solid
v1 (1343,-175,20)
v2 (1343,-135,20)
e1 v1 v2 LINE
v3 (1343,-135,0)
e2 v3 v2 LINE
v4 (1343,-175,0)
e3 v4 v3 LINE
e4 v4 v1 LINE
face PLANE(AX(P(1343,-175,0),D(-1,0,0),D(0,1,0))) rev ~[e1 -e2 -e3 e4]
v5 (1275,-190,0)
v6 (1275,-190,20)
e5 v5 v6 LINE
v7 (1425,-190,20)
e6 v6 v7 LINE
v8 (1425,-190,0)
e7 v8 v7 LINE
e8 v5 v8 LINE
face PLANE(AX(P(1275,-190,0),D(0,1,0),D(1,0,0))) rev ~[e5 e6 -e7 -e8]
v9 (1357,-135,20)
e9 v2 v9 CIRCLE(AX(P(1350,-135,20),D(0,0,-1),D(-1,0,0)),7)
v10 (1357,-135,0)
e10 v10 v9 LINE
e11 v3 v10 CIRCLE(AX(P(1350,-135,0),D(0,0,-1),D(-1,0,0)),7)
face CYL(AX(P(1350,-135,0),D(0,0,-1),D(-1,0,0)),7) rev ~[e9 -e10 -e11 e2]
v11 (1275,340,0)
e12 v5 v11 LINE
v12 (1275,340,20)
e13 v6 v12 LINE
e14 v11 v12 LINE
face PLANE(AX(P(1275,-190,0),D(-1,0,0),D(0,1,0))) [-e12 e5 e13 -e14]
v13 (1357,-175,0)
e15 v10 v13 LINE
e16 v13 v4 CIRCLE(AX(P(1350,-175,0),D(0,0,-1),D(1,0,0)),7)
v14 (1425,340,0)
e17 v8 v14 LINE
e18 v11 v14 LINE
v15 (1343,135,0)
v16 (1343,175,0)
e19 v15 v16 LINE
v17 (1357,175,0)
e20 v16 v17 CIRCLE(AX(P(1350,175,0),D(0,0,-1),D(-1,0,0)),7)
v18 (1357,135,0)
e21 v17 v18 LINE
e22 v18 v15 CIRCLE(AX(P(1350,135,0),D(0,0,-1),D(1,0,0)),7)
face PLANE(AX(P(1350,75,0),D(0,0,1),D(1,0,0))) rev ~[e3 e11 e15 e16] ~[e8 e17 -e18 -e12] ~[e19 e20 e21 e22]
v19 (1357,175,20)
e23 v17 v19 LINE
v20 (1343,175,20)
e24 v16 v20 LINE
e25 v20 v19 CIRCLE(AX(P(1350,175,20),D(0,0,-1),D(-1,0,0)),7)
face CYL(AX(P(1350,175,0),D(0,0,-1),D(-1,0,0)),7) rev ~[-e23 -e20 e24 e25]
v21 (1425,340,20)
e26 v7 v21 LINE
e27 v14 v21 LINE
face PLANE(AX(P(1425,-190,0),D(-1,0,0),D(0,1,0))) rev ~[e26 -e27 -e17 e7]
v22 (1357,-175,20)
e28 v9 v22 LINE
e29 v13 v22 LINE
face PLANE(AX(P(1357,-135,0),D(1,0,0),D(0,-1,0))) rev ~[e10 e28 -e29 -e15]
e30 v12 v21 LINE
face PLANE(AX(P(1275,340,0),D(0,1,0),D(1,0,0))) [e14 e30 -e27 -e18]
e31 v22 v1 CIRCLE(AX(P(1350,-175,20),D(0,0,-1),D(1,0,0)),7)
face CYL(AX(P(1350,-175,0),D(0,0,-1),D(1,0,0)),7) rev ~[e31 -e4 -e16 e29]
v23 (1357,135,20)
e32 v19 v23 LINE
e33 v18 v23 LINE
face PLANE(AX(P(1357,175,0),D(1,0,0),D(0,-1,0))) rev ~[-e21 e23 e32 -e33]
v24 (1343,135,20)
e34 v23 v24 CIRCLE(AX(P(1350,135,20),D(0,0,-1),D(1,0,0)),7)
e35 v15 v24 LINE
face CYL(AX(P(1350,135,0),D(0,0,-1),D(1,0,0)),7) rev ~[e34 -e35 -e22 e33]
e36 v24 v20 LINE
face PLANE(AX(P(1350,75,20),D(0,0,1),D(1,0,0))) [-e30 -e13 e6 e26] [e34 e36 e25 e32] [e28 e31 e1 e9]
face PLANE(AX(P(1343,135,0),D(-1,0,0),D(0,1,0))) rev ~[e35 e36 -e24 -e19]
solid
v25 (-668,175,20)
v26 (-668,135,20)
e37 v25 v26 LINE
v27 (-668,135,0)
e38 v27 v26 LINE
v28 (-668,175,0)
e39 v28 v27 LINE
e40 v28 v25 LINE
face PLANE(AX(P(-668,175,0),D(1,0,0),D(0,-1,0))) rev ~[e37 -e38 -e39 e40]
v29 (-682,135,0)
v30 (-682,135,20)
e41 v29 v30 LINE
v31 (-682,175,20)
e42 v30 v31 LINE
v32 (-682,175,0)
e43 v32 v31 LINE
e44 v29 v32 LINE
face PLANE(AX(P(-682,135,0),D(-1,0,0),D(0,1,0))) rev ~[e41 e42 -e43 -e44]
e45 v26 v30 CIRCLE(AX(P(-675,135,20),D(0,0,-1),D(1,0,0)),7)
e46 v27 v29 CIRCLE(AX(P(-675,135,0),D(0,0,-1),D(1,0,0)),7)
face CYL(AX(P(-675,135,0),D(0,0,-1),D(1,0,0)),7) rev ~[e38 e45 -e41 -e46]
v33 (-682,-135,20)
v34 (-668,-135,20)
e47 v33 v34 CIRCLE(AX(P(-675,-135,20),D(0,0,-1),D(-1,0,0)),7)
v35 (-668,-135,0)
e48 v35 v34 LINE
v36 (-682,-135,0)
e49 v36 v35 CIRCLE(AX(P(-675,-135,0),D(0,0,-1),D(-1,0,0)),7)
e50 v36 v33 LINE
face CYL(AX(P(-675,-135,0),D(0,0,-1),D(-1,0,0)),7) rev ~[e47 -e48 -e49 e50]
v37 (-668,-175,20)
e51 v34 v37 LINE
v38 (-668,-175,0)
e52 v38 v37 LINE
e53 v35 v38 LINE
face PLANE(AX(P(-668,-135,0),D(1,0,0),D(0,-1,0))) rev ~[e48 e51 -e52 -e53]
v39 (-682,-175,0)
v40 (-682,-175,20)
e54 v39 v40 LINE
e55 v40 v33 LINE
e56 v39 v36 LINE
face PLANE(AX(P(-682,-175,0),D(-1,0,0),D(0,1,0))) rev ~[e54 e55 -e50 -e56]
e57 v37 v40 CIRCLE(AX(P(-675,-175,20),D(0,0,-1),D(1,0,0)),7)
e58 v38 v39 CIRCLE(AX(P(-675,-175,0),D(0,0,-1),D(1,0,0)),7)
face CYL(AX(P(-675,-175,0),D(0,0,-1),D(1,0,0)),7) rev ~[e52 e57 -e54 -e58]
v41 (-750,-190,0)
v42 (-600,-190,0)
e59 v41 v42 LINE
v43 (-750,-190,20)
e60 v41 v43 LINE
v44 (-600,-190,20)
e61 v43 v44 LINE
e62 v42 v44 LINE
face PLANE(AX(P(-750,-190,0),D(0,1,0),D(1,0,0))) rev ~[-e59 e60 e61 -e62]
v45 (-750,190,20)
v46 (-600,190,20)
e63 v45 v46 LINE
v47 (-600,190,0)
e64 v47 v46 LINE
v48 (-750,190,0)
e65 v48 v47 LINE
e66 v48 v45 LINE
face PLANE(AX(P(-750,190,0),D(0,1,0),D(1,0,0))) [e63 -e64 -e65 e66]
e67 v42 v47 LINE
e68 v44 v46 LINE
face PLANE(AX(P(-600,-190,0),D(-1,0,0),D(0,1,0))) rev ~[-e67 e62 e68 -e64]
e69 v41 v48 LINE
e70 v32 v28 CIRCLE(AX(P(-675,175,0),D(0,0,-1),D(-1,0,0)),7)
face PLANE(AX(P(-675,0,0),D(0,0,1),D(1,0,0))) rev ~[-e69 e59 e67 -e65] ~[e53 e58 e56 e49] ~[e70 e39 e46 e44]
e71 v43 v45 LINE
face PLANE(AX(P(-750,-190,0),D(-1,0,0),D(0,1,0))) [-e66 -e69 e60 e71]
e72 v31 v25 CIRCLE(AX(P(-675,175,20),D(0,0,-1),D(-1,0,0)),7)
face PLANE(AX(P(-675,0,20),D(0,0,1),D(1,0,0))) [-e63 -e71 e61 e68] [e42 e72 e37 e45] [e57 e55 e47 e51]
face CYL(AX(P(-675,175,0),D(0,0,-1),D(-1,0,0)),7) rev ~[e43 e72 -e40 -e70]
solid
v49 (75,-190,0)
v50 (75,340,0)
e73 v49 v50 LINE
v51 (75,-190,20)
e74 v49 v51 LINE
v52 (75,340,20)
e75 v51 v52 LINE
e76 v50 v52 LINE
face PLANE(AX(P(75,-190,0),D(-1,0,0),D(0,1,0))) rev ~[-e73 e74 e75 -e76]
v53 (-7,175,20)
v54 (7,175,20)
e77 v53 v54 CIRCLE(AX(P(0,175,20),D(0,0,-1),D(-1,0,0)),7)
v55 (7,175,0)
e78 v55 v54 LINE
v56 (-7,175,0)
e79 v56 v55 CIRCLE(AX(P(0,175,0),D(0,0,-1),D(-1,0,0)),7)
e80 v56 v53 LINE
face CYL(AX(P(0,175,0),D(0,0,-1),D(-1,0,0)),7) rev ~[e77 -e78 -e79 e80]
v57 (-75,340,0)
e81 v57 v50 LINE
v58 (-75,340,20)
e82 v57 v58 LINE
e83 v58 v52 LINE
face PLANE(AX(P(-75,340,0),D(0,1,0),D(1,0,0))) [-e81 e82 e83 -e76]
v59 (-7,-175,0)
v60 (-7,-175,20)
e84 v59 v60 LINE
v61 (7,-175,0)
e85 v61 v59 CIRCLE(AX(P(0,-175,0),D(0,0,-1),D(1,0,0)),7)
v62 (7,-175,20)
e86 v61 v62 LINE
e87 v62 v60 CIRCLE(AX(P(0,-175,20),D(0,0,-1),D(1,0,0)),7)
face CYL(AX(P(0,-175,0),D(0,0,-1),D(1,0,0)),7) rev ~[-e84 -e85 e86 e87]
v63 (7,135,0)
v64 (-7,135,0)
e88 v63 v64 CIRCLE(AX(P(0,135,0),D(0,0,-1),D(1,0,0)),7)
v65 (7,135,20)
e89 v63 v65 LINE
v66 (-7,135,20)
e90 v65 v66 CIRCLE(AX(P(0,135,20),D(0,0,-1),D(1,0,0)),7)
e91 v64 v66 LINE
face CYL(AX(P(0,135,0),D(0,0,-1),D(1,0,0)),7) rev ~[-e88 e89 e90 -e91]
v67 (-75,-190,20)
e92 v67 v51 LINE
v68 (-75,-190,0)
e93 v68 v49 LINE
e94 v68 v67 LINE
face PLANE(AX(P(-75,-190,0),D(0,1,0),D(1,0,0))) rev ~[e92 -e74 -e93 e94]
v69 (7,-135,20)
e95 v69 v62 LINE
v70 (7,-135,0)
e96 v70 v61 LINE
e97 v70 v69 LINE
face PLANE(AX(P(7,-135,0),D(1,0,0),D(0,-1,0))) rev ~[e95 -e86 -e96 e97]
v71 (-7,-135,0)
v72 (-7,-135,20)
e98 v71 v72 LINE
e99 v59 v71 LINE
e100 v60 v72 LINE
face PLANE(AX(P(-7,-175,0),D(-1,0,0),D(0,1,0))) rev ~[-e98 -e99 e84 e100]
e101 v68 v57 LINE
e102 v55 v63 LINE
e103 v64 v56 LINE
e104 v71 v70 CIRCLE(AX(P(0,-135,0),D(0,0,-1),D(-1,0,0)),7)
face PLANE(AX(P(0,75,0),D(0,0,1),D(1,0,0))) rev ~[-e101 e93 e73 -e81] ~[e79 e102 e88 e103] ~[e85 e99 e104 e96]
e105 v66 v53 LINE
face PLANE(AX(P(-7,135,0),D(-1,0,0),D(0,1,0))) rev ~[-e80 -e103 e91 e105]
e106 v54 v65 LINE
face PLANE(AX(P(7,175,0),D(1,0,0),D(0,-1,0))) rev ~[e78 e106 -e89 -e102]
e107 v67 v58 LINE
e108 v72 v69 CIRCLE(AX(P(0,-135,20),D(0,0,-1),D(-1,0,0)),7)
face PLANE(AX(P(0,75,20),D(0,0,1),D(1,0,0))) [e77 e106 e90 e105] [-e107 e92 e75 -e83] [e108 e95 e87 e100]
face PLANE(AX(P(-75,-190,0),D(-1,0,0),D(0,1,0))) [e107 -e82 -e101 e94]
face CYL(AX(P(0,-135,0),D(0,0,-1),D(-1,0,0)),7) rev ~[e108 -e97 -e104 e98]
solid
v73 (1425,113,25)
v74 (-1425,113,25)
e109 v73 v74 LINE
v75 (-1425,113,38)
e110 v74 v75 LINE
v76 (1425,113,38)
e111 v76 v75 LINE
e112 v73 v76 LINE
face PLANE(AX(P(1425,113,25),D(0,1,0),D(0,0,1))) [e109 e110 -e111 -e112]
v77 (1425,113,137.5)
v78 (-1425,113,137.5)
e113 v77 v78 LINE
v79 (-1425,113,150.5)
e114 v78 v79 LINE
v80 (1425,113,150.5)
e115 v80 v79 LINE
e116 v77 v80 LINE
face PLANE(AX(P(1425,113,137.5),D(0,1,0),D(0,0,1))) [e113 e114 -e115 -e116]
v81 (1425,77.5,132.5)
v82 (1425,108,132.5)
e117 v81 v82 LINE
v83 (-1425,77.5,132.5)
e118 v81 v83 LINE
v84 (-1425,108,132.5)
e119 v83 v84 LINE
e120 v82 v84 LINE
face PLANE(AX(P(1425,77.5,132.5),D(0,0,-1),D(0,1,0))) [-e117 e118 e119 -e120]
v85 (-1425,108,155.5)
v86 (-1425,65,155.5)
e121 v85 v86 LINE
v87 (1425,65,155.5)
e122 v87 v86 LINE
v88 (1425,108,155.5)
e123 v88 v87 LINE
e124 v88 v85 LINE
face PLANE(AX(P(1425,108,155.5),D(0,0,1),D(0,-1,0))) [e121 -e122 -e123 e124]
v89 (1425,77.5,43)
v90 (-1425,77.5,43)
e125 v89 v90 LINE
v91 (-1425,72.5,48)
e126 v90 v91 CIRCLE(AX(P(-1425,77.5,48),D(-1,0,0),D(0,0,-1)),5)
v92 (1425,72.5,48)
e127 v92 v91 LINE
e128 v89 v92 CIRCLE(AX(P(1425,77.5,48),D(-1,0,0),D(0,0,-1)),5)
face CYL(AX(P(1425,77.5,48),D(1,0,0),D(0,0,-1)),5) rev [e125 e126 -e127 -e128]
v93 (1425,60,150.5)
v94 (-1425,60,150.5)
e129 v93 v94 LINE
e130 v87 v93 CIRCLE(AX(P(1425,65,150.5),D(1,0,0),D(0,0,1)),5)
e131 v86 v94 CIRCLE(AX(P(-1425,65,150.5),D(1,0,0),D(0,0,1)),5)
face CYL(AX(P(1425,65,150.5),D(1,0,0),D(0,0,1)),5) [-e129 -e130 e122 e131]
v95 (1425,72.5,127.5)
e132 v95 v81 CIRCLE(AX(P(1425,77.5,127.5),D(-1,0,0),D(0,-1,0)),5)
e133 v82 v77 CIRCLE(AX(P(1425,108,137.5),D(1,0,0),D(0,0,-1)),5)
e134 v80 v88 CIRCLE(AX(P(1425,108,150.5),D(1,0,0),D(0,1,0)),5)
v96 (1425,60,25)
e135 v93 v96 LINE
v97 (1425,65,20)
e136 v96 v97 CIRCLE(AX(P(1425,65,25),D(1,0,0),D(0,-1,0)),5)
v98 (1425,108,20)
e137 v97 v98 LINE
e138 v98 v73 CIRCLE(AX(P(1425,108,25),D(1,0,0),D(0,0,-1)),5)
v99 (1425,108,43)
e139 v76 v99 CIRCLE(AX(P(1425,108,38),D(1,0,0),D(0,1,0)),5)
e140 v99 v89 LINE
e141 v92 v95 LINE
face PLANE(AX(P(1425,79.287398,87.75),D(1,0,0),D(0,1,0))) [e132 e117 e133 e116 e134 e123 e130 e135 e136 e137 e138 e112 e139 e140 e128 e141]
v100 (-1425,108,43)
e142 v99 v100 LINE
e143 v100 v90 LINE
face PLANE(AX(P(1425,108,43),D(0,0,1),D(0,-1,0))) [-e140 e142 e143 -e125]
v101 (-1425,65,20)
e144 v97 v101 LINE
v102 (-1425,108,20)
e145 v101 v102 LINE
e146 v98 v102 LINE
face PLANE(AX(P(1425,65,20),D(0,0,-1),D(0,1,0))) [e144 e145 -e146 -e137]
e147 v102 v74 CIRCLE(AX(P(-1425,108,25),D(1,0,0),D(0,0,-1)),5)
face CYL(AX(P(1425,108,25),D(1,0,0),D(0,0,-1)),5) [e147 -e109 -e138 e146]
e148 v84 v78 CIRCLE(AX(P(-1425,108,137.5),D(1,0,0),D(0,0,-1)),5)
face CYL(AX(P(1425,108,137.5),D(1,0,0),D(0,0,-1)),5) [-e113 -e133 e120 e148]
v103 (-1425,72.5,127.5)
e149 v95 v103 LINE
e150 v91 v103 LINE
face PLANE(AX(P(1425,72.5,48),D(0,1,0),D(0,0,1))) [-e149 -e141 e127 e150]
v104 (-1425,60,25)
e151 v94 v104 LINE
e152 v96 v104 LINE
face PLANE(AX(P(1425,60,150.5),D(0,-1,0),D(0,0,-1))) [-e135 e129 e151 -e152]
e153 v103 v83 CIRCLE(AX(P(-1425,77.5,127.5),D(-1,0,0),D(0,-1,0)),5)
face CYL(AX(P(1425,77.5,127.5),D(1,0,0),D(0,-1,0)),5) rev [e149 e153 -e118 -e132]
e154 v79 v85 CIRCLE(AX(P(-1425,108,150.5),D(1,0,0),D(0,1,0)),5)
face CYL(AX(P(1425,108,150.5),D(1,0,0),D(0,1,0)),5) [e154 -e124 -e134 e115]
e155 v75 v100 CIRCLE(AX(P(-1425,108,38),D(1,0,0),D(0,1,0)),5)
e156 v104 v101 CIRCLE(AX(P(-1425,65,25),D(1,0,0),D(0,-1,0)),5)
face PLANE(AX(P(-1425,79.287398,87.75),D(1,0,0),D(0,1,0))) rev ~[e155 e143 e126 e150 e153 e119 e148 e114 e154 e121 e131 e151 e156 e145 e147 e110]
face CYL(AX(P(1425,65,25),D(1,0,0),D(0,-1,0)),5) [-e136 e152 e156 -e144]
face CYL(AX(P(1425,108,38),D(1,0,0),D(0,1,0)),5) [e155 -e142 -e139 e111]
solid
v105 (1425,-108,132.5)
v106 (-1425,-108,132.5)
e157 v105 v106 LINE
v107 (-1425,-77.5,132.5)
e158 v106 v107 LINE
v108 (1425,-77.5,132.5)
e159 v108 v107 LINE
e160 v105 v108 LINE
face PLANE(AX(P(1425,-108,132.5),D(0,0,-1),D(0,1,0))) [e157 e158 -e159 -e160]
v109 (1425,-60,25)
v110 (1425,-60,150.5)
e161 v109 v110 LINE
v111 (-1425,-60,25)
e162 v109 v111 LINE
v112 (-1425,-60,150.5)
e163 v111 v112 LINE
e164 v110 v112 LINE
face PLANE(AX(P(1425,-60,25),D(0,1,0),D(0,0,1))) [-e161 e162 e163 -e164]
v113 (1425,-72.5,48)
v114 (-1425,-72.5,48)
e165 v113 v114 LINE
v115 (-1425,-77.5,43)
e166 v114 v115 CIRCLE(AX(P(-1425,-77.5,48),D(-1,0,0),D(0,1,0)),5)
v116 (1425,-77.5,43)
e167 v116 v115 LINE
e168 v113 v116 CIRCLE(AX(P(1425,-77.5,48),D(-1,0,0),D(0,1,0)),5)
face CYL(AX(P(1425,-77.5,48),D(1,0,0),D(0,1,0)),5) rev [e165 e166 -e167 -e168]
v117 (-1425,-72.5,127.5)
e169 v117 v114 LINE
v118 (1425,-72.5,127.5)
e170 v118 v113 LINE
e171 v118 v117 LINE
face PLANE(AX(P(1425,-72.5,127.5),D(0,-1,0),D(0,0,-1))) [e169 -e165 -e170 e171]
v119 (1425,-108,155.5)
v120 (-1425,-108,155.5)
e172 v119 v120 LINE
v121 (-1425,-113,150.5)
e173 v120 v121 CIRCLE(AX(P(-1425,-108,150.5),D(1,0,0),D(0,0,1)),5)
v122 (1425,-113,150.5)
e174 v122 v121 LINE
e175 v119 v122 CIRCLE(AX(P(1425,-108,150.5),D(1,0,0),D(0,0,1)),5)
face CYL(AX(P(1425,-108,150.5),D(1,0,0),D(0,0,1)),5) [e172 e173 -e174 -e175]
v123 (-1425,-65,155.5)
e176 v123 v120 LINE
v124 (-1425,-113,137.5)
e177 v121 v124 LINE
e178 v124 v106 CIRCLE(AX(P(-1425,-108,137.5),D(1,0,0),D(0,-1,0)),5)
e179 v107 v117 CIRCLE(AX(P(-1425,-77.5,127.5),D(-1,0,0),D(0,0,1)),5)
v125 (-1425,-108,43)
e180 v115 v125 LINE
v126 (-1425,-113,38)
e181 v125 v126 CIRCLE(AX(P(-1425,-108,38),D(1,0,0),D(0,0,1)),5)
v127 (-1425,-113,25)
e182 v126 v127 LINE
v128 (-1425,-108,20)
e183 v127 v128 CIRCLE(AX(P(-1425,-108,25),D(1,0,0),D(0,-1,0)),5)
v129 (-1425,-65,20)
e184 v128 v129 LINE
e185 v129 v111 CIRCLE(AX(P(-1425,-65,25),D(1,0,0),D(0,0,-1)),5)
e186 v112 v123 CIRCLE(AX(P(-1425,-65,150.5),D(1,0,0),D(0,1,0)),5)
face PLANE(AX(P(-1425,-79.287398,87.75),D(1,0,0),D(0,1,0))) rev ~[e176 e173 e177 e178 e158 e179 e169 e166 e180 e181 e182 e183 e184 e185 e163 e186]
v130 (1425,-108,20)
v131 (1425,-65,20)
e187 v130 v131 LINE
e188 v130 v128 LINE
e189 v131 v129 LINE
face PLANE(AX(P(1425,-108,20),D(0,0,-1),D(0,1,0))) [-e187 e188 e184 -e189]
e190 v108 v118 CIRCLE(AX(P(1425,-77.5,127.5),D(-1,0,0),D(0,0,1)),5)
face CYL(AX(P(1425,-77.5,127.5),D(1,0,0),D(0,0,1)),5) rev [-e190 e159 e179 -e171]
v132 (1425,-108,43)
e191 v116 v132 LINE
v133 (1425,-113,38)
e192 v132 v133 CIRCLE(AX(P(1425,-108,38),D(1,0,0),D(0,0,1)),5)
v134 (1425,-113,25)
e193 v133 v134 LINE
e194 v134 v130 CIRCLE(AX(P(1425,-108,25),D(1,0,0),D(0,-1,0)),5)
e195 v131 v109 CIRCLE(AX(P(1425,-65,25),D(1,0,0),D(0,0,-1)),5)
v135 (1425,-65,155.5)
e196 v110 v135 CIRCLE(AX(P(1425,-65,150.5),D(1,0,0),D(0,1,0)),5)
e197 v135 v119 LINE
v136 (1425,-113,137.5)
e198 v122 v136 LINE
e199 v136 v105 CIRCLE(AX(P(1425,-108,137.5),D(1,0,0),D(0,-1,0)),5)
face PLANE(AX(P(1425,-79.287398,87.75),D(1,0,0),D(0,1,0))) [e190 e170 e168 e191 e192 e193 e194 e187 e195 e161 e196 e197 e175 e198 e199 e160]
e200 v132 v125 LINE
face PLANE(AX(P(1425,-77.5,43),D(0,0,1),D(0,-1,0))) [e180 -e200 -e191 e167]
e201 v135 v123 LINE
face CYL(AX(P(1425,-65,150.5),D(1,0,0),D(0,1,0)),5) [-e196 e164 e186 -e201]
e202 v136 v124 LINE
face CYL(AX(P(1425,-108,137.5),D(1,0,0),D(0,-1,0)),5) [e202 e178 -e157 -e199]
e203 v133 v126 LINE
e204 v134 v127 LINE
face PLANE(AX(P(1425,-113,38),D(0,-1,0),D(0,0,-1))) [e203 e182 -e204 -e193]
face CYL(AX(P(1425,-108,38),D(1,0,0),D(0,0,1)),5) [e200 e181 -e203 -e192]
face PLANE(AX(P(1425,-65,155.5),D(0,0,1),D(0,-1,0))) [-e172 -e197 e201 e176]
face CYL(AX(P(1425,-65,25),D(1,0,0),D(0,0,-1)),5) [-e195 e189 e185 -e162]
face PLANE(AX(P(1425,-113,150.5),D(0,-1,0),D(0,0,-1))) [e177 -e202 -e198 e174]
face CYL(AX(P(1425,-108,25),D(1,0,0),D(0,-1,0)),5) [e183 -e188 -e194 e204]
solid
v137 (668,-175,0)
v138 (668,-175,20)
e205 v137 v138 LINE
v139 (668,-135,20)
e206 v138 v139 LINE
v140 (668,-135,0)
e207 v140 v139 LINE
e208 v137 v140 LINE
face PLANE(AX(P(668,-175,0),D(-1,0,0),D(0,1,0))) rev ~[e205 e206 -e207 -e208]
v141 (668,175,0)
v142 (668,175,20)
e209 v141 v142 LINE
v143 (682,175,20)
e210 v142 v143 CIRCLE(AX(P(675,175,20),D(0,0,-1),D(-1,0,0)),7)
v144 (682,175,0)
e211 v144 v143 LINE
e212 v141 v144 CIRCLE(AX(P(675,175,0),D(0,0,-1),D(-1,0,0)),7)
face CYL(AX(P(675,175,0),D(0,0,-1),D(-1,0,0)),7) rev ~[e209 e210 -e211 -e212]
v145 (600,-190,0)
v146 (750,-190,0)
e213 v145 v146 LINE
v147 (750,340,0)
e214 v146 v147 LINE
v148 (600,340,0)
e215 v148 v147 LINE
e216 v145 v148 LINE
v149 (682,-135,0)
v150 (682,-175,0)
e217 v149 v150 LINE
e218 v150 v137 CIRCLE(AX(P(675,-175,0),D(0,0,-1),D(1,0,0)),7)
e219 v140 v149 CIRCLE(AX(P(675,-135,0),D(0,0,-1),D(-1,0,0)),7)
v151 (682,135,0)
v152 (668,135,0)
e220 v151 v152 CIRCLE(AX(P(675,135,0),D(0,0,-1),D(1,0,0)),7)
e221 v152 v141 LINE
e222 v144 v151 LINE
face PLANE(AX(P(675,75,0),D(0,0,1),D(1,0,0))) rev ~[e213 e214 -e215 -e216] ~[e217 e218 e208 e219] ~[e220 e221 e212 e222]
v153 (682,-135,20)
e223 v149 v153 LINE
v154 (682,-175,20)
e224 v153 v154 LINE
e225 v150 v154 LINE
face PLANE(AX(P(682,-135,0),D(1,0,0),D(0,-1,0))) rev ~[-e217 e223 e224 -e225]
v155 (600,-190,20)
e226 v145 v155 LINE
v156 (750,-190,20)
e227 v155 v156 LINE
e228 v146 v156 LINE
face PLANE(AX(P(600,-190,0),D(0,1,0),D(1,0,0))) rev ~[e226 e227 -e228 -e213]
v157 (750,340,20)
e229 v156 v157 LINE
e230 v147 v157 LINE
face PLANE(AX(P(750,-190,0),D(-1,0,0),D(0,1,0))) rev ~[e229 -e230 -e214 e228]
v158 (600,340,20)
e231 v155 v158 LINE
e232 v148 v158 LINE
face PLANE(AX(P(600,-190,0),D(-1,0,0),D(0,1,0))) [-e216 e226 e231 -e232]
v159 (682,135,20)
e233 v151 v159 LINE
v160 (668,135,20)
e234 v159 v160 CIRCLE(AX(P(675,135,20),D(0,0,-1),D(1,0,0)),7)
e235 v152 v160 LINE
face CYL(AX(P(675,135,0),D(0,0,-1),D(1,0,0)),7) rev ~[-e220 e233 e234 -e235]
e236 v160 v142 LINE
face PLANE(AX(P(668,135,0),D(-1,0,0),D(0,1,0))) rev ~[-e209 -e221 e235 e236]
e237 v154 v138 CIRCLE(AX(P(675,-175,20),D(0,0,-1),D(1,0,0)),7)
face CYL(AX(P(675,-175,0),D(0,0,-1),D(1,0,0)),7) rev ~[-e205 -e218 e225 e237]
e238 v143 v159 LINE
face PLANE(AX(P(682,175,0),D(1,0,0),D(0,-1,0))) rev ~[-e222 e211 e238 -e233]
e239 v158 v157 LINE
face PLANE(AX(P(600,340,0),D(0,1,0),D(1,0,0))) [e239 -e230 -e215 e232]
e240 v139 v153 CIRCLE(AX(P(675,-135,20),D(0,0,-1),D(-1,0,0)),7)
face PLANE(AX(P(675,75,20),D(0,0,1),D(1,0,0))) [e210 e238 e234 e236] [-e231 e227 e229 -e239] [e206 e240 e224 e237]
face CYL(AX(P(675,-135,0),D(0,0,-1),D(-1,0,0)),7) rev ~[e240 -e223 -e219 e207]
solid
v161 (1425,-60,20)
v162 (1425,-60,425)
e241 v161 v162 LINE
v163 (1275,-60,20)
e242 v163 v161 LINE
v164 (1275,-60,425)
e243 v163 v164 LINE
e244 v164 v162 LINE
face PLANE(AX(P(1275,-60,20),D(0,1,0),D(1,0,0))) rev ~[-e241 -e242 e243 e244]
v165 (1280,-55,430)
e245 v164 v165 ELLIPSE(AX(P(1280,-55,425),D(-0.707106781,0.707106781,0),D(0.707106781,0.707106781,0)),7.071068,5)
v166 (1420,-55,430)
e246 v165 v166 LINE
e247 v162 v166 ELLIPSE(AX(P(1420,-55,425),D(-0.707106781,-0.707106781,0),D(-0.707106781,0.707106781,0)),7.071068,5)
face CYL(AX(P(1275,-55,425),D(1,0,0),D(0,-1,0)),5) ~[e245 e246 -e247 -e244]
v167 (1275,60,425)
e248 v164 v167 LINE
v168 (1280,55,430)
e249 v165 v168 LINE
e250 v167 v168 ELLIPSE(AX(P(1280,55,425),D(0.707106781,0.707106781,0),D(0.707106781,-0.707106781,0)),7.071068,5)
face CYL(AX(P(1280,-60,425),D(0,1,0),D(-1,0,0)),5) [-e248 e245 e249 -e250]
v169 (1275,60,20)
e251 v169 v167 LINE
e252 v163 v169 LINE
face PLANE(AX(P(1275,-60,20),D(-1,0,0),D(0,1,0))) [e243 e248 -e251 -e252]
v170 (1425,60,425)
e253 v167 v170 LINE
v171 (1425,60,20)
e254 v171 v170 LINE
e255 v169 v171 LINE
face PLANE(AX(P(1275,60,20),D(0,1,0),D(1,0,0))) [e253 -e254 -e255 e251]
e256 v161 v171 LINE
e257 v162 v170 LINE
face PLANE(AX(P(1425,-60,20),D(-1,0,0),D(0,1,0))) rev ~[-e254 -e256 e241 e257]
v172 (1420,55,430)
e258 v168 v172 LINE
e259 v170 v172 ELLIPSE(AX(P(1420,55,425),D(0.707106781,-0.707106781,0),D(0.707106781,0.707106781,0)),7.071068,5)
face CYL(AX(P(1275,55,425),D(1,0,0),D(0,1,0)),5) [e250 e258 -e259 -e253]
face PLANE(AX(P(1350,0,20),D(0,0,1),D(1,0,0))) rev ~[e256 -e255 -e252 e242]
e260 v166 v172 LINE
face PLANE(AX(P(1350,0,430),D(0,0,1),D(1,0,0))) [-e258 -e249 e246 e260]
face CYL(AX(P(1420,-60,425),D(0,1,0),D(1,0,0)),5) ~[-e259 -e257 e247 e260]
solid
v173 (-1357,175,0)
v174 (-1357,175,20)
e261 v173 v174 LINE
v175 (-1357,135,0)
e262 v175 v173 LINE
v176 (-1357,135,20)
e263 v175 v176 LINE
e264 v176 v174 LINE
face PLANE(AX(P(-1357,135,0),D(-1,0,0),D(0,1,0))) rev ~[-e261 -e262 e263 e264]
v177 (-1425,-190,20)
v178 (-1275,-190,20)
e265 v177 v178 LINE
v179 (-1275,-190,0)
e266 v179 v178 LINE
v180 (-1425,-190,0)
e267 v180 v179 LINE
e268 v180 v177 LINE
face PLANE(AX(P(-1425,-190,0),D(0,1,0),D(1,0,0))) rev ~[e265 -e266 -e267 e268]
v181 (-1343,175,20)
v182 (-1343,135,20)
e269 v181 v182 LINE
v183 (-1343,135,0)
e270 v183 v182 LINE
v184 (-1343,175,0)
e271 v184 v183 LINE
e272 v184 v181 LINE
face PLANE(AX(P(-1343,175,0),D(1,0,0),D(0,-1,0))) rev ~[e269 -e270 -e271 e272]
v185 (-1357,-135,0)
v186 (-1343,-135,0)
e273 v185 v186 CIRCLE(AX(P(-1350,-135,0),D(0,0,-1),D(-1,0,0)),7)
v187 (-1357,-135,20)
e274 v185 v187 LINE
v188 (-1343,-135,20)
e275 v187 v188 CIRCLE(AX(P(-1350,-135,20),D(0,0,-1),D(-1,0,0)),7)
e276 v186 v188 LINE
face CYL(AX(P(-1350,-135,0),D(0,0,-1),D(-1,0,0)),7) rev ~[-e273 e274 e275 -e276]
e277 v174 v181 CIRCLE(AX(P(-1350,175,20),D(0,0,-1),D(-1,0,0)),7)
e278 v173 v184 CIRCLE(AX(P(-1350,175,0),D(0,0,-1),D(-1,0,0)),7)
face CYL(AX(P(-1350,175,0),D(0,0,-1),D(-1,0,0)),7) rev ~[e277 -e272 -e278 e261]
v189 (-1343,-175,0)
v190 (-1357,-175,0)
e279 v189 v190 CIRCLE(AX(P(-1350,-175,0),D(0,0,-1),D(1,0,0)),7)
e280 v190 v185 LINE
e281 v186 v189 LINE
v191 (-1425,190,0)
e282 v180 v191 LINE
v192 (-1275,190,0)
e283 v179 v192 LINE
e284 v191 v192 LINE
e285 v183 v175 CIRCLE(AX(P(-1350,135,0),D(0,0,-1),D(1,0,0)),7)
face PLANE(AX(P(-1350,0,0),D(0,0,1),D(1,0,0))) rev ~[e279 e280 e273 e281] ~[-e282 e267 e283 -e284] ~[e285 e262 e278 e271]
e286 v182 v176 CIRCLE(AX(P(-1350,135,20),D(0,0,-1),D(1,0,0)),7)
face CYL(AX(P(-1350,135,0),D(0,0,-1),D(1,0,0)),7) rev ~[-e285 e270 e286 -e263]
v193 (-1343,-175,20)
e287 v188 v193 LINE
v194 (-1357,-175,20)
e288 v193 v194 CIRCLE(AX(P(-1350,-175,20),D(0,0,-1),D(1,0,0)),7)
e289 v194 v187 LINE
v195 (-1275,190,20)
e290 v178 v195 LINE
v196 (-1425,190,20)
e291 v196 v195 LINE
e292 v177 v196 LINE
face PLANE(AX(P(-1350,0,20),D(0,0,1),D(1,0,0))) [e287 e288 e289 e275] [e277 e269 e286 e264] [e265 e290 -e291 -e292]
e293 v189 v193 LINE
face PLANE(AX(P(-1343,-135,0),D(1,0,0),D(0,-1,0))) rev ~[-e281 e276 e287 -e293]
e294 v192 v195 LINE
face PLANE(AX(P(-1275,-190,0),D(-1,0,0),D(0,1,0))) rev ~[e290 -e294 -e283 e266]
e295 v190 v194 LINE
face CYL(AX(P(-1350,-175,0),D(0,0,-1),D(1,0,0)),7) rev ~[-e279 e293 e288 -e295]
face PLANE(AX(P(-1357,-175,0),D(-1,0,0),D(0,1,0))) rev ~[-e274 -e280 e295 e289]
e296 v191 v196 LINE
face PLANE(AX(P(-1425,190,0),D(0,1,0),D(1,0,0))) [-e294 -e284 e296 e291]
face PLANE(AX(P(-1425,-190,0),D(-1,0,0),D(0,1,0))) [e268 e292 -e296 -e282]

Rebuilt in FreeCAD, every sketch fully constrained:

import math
import FreeCAD as App
import Part
import Sketcher

V = App.Vector
Q = App.Units.Quantity


def edges_at(feature, points):
    """Names of the edges that pass closest to the given points."""
    edges = feature.Shape.Edges
    near = lambda p: min(range(len(edges)), key=lambda i: edges[i].distToShape(Part.Vertex(*p))[0])
    return sorted({f"Edge{near(p) + 1}" for p in points})


def add_polygon(sketch, points):
    """Adds a closed chain of lines whose ends are joined by coincident constraints."""
    first, n = sketch.GeometryCount, len(points)
    for a, b in zip(points, points[1:] + points[:1]):
        sketch.addGeometry(Part.LineSegment(App.Vector(*a, 0), App.Vector(*b, 0)), False)
    for i in range(n):
        sketch.addConstraint(Sketcher.Constraint("Coincident", first + i, 2, first + (i + 1) % n, 1))

doc = App.newDocument("Part")
body = doc.addObject("PartDesign::Body", "Body")

sketch1 = body.newObject("Sketcher::SketchObject", "Sketch")
sketch1.AttachmentSupport = (doc.getObject("XY_Plane"), [""])
sketch1.MapMode = "FlatFace"
add_polygon(sketch1, [(-1425, 190), (-1425, -190), (-1275, -190), (-1275, 190)])
sketch1.addGeometry(Part.LineSegment(V(-1357, -175, 0), V(-1357, -135, 0)), False)
sketch1.addGeometry(Part.ArcOfCircle(Part.Circle(V(-1350, -135, 0), V(0, 0, 1), 7), math.radians(0), math.radians(180)), False)
sketch1.addGeometry(Part.LineSegment(V(-1343, -135, 0), V(-1343, -175, 0)), False)
sketch1.addGeometry(Part.ArcOfCircle(Part.Circle(V(-1350, -175, 0), V(0, 0, 1), 7), math.radians(180), math.radians(360)), False)
sketch1.addGeometry(Part.ArcOfCircle(Part.Circle(V(-1350, 135, 0), V(0, 0, 1), 7), math.radians(180), math.radians(360)), False)
sketch1.addGeometry(Part.LineSegment(V(-1357, 135, 0), V(-1357, 175, 0)), False)
sketch1.addGeometry(Part.ArcOfCircle(Part.Circle(V(-1350, 175, 0), V(0, 0, 1), 7), math.radians(0), math.radians(180)), False)
sketch1.addGeometry(Part.LineSegment(V(-1343, 175, 0), V(-1343, 135, 0)), False)
sketch1.addConstraint(Sketcher.Constraint("Tangent", 4, 2, 5, 2))
sketch1.addConstraint(Sketcher.Constraint("Tangent", 5, 1, 6, 1))
sketch1.addConstraint(Sketcher.Constraint("Tangent", 6, 2, 7, 2))
sketch1.addConstraint(Sketcher.Constraint("Tangent", 7, 1, 4, 1))
sketch1.addConstraint(Sketcher.Constraint("Tangent", 8, 1, 9, 1))
sketch1.addConstraint(Sketcher.Constraint("Tangent", 9, 2, 10, 2))
sketch1.addConstraint(Sketcher.Constraint("Tangent", 10, 1, 11, 1))
sketch1.addConstraint(Sketcher.Constraint("Tangent", 11, 2, 8, 2))
sketch1.addConstraint(Sketcher.Constraint("Vertical", 0))
sketch1.addConstraint(Sketcher.Constraint("Horizontal", 1))
sketch1.addConstraint(Sketcher.Constraint("Vertical", 2))
sketch1.addConstraint(Sketcher.Constraint("Horizontal", 3))
sketch1.addConstraint(Sketcher.Constraint("Vertical", 4))
sketch1.addConstraint(Sketcher.Constraint("Vertical", 6))
sketch1.addConstraint(Sketcher.Constraint("Vertical", 9))
sketch1.addConstraint(Sketcher.Constraint("Vertical", 11))
sketch1.addConstraint(Sketcher.Constraint("Equal", 7, 8))
sketch1.addConstraint(Sketcher.Constraint("Symmetric", 5, 3, 8, 3, -1))
sketch1.addConstraint(Sketcher.Constraint("Equal", 6, 9))
sketch1.addConstraint(Sketcher.Constraint("Radius", 5, Q("7 mm")))
sketch1.addConstraint(Sketcher.Constraint("DistanceX", 1, 1, 1, 2, Q("150 mm")))
sketch1.addConstraint(Sketcher.Constraint("DistanceY", 0, 2, 0, 1, Q("380 mm")))
sketch1.addConstraint(Sketcher.Constraint("DistanceY", 4, 1, 4, 2, Q("40 mm")))
sketch1.addConstraint(Sketcher.Constraint("DistanceX", 5, 3, -1, 1, Q("1350 mm")))
sketch1.addConstraint(Sketcher.Constraint("DistanceY", 5, 3, -1, 1, Q("135 mm")))
sketch1.addConstraint(Sketcher.Constraint("DistanceX", 0, 2, -1, 1, Q("1425 mm")))
sketch1.addConstraint(Sketcher.Constraint("DistanceY", 0, 2, -1, 1, Q("190 mm")))
pad1 = body.newObject("PartDesign::Pad", "Pad")
pad1.Profile = sketch1
pad1.Length = 20
body2 = doc.addObject("PartDesign::Body", "Body001")

sketch2 = body2.newObject("Sketcher::SketchObject", "Sketch001")
sketch2.AttachmentSupport = (doc.getObject("XY_Plane001"), [""])
sketch2.MapMode = "FlatFace"
add_polygon(sketch2, [(-750, 190), (-750, -190), (-600, -190), (-600, 190)])
sketch2.addGeometry(Part.ArcOfCircle(Part.Circle(V(-675, -135, 0), V(0, 0, 1), 7), math.radians(0), math.radians(180)), False)
sketch2.addGeometry(Part.LineSegment(V(-668, -135, 0), V(-668, -175, 0)), False)
sketch2.addGeometry(Part.ArcOfCircle(Part.Circle(V(-675, -175, 0), V(0, 0, 1), 7), math.radians(180), math.radians(360)), False)
sketch2.addGeometry(Part.LineSegment(V(-682, -175, 0), V(-682, -135, 0)), False)
sketch2.addGeometry(Part.LineSegment(V(-682, 135, 0), V(-682, 175, 0)), False)
sketch2.addGeometry(Part.ArcOfCircle(Part.Circle(V(-675, 175, 0), V(0, 0, 1), 7), math.radians(0), math.radians(180)), False)
sketch2.addGeometry(Part.LineSegment(V(-668, 175, 0), V(-668, 135, 0)), False)
sketch2.addGeometry(Part.ArcOfCircle(Part.Circle(V(-675, 135, 0), V(0, 0, 1), 7), math.radians(180), math.radians(360)), False)
sketch2.addConstraint(Sketcher.Constraint("Tangent", 4, 1, 5, 1))
sketch2.addConstraint(Sketcher.Constraint("Tangent", 5, 2, 6, 2))
sketch2.addConstraint(Sketcher.Constraint("Tangent", 6, 1, 7, 1))
sketch2.addConstraint(Sketcher.Constraint("Tangent", 7, 2, 4, 2))
sketch2.addConstraint(Sketcher.Constraint("Tangent", 8, 2, 9, 2))
sketch2.addConstraint(Sketcher.Constraint("Tangent", 9, 1, 10, 1))
sketch2.addConstraint(Sketcher.Constraint("Tangent", 10, 2, 11, 2))
sketch2.addConstraint(Sketcher.Constraint("Tangent", 11, 1, 8, 1))
sketch2.addConstraint(Sketcher.Constraint("Vertical", 0))
sketch2.addConstraint(Sketcher.Constraint("Horizontal", 1))
sketch2.addConstraint(Sketcher.Constraint("Vertical", 2))
sketch2.addConstraint(Sketcher.Constraint("Horizontal", 3))
sketch2.addConstraint(Sketcher.Constraint("Vertical", 5))
sketch2.addConstraint(Sketcher.Constraint("Vertical", 7))
sketch2.addConstraint(Sketcher.Constraint("Vertical", 8))
sketch2.addConstraint(Sketcher.Constraint("Vertical", 10))
sketch2.addConstraint(Sketcher.Constraint("Equal", 6, 9))
sketch2.addConstraint(Sketcher.Constraint("Symmetric", 6, 3, 9, 3, -1))
sketch2.addConstraint(Sketcher.Constraint("Equal", 7, 8))
sketch2.addConstraint(Sketcher.Constraint("Radius", 4, Q("7 mm")))
sketch2.addConstraint(Sketcher.Constraint("DistanceX", 1, 1, 1, 2, Q("150 mm")))
sketch2.addConstraint(Sketcher.Constraint("DistanceY", 0, 2, 0, 1, Q("380 mm")))
sketch2.addConstraint(Sketcher.Constraint("DistanceY", 5, 2, 5, 1, Q("40 mm")))
sketch2.addConstraint(Sketcher.Constraint("DistanceX", 4, 3, -1, 1, Q("675 mm")))
sketch2.addConstraint(Sketcher.Constraint("DistanceY", 4, 3, -1, 1, Q("135 mm")))
sketch2.addConstraint(Sketcher.Constraint("DistanceX", 0, 2, -1, 1, Q("750 mm")))
sketch2.addConstraint(Sketcher.Constraint("DistanceY", 0, 2, -1, 1, Q("190 mm")))
pad2 = body2.newObject("PartDesign::Pad", "Pad001")
pad2.Profile = sketch2
pad2.Length = 20
body3 = doc.addObject("PartDesign::Body", "Body002")

sketch3 = body3.newObject("Sketcher::SketchObject", "Sketch002")
sketch3.AttachmentSupport = (doc.getObject("XY_Plane002"), [""])
sketch3.MapMode = "FlatFace"
add_polygon(sketch3, [(-75, 340), (-75, -190), (75, -190), (75, 340)])
sketch3.addGeometry(Part.LineSegment(V(7, -135, 0), V(7, -175, 0)), False)
sketch3.addGeometry(Part.ArcOfCircle(Part.Circle(V(0, -175, 0), V(0, 0, 1), 7), math.radians(180), math.radians(360)), False)
sketch3.addGeometry(Part.LineSegment(V(-7, -175, 0), V(-7, -135, 0)), False)
sketch3.addGeometry(Part.ArcOfCircle(Part.Circle(V(0, -135, 0), V(0, 0, 1), 7), math.radians(0), math.radians(180)), False)
sketch3.addGeometry(Part.ArcOfCircle(Part.Circle(V(0, 135, 0), V(0, 0, 1), 7), math.radians(180), math.radians(360)), False)
sketch3.addGeometry(Part.LineSegment(V(-7, 135, 0), V(-7, 175, 0)), False)
sketch3.addGeometry(Part.ArcOfCircle(Part.Circle(V(0, 175, 0), V(0, 0, 1), 7), math.radians(0), math.radians(180)), False)
sketch3.addGeometry(Part.LineSegment(V(7, 175, 0), V(7, 135, 0)), False)
sketch3.addConstraint(Sketcher.Constraint("Tangent", 4, 2, 5, 2))
sketch3.addConstraint(Sketcher.Constraint("Tangent", 5, 1, 6, 1))
sketch3.addConstraint(Sketcher.Constraint("Tangent", 6, 2, 7, 2))
sketch3.addConstraint(Sketcher.Constraint("Tangent", 7, 1, 4, 1))
sketch3.addConstraint(Sketcher.Constraint("Tangent", 8, 1, 9, 1))
sketch3.addConstraint(Sketcher.Constraint("Tangent", 9, 2, 10, 2))
sketch3.addConstraint(Sketcher.Constraint("Tangent", 10, 1, 11, 1))
sketch3.addConstraint(Sketcher.Constraint("Tangent", 11, 2, 8, 2))
sketch3.addConstraint(Sketcher.Constraint("Vertical", 0))
sketch3.addConstraint(Sketcher.Constraint("Horizontal", 1))
sketch3.addConstraint(Sketcher.Constraint("Vertical", 2))
sketch3.addConstraint(Sketcher.Constraint("Horizontal", 3))
sketch3.addConstraint(Sketcher.Constraint("Vertical", 4))
sketch3.addConstraint(Sketcher.Constraint("Vertical", 6))
sketch3.addConstraint(Sketcher.Constraint("Vertical", 9))
sketch3.addConstraint(Sketcher.Constraint("Vertical", 11))
sketch3.addConstraint(Sketcher.Constraint("Equal", 7, 8))
sketch3.addConstraint(Sketcher.Constraint("Symmetric", 7, 3, 8, 3, -1, 1))
sketch3.addConstraint(Sketcher.Constraint("Symmetric", 5, 3, 10, 3, -1))
sketch3.addConstraint(Sketcher.Constraint("Radius", 5, Q("7 mm")))
sketch3.addConstraint(Sketcher.Constraint("DistanceX", 1, 1, 1, 2, Q("150 mm")))
sketch3.addConstraint(Sketcher.Constraint("DistanceY", 0, 2, 0, 1, Q("530 mm")))
sketch3.addConstraint(Sketcher.Constraint("DistanceY", 4, 2, 4, 1, Q("40 mm")))
sketch3.addConstraint(Sketcher.Constraint("DistanceY", 5, 3, -1, 1, Q("175 mm")))
sketch3.addConstraint(Sketcher.Constraint("DistanceX", 0, 2, -1, 1, Q("75 mm")))
sketch3.addConstraint(Sketcher.Constraint("DistanceY", 0, 2, -1, 1, Q("190 mm")))
pad3 = body3.newObject("PartDesign::Pad", "Pad002")
pad3.Profile = sketch3
pad3.Length = 20
body4 = doc.addObject("PartDesign::Body", "Body003")

sketch4 = body4.newObject("Sketcher::SketchObject", "Sketch003")
sketch4.AttachmentSupport = (doc.getObject("XY_Plane003"), [""])
sketch4.MapMode = "FlatFace"
add_polygon(sketch4, [(600, 340), (600, -190), (750, -190), (750, 340)])
sketch4.addGeometry(Part.LineSegment(V(682, -135, 0), V(682, -175, 0)), False)
sketch4.addGeometry(Part.ArcOfCircle(Part.Circle(V(675, -175, 0), V(0, 0, 1), 7), math.radians(180), math.radians(360)), False)
sketch4.addGeometry(Part.LineSegment(V(668, -175, 0), V(668, -135, 0)), False)
sketch4.addGeometry(Part.ArcOfCircle(Part.Circle(V(675, -135, 0), V(0, 0, 1), 7), math.radians(0), math.radians(180)), False)
sketch4.addGeometry(Part.LineSegment(V(668, 135, 0), V(668, 175, 0)), False)
sketch4.addGeometry(Part.ArcOfCircle(Part.Circle(V(675, 175, 0), V(0, 0, 1), 7), math.radians(0), math.radians(180)), False)
sketch4.addGeometry(Part.LineSegment(V(682, 175, 0), V(682, 135, 0)), False)
sketch4.addGeometry(Part.ArcOfCircle(Part.Circle(V(675, 135, 0), V(0, 0, 1), 7), math.radians(180), math.radians(360)), False)
sketch4.addConstraint(Sketcher.Constraint("Tangent", 4, 2, 5, 2))
sketch4.addConstraint(Sketcher.Constraint("Tangent", 5, 1, 6, 1))
sketch4.addConstraint(Sketcher.Constraint("Tangent", 6, 2, 7, 2))
sketch4.addConstraint(Sketcher.Constraint("Tangent", 7, 1, 4, 1))
sketch4.addConstraint(Sketcher.Constraint("Tangent", 8, 2, 9, 2))
sketch4.addConstraint(Sketcher.Constraint("Tangent", 9, 1, 10, 1))
sketch4.addConstraint(Sketcher.Constraint("Tangent", 10, 2, 11, 2))
sketch4.addConstraint(Sketcher.Constraint("Tangent", 11, 1, 8, 1))
sketch4.addConstraint(Sketcher.Constraint("Vertical", 0))
sketch4.addConstraint(Sketcher.Constraint("Horizontal", 1))
sketch4.addConstraint(Sketcher.Constraint("Vertical", 2))
sketch4.addConstraint(Sketcher.Constraint("Horizontal", 3))
sketch4.addConstraint(Sketcher.Constraint("Vertical", 4))
sketch4.addConstraint(Sketcher.Constraint("Vertical", 6))
sketch4.addConstraint(Sketcher.Constraint("Vertical", 8))
sketch4.addConstraint(Sketcher.Constraint("Vertical", 10))
sketch4.addConstraint(Sketcher.Constraint("Equal", 7, 9))
sketch4.addConstraint(Sketcher.Constraint("Symmetric", 5, 3, 9, 3, -1))
sketch4.addConstraint(Sketcher.Constraint("Equal", 6, 8))
sketch4.addConstraint(Sketcher.Constraint("Radius", 5, Q("7 mm")))
sketch4.addConstraint(Sketcher.Constraint("DistanceX", 1, 1, 1, 2, Q("150 mm")))
sketch4.addConstraint(Sketcher.Constraint("DistanceY", 0, 2, 0, 1, Q("530 mm")))
sketch4.addConstraint(Sketcher.Constraint("DistanceY", 4, 2, 4, 1, Q("40 mm")))
sketch4.addConstraint(Sketcher.Constraint("DistanceX", -1, 1, 5, 3, Q("675 mm")))
sketch4.addConstraint(Sketcher.Constraint("DistanceY", 5, 3, -1, 1, Q("175 mm")))
sketch4.addConstraint(Sketcher.Constraint("DistanceX", -1, 1, 0, 2, Q("600 mm")))
sketch4.addConstraint(Sketcher.Constraint("DistanceY", 0, 2, -1, 1, Q("190 mm")))
pad4 = body4.newObject("PartDesign::Pad", "Pad003")
pad4.Profile = sketch4
pad4.Length = 20
body5 = doc.addObject("PartDesign::Body", "Body004")

sketch5 = body5.newObject("Sketcher::SketchObject", "Sketch004")
sketch5.AttachmentSupport = (doc.getObject("XY_Plane004"), [""])
sketch5.MapMode = "FlatFace"
add_polygon(sketch5, [(1275, 340), (1275, -190), (1425, -190), (1425, 340)])
sketch5.addGeometry(Part.LineSegment(V(1357, -135, 0), V(1357, -175, 0)), False)
sketch5.addGeometry(Part.ArcOfCircle(Part.Circle(V(1350, -175, 0), V(0, 0, 1), 7), math.radians(180), math.radians(360)), False)
sketch5.addGeometry(Part.LineSegment(V(1343, -175, 0), V(1343, -135, 0)), False)
sketch5.addGeometry(Part.ArcOfCircle(Part.Circle(V(1350, -135, 0), V(0, 0, 1), 7), math.radians(0), math.radians(180)), False)
sketch5.addGeometry(Part.LineSegment(V(1343, 135, 0), V(1343, 175, 0)), False)
sketch5.addGeometry(Part.ArcOfCircle(Part.Circle(V(1350, 175, 0), V(0, 0, 1), 7), math.radians(0), math.radians(180)), False)
sketch5.addGeometry(Part.LineSegment(V(1357, 175, 0), V(1357, 135, 0)), False)
sketch5.addGeometry(Part.ArcOfCircle(Part.Circle(V(1350, 135, 0), V(0, 0, 1), 7), math.radians(180), math.radians(360)), False)
sketch5.addConstraint(Sketcher.Constraint("Tangent", 4, 2, 5, 2))
sketch5.addConstraint(Sketcher.Constraint("Tangent", 5, 1, 6, 1))
sketch5.addConstraint(Sketcher.Constraint("Tangent", 6, 2, 7, 2))
sketch5.addConstraint(Sketcher.Constraint("Tangent", 7, 1, 4, 1))
sketch5.addConstraint(Sketcher.Constraint("Tangent", 8, 2, 9, 2))
sketch5.addConstraint(Sketcher.Constraint("Tangent", 9, 1, 10, 1))
sketch5.addConstraint(Sketcher.Constraint("Tangent", 10, 2, 11, 2))
sketch5.addConstraint(Sketcher.Constraint("Tangent", 11, 1, 8, 1))
sketch5.addConstraint(Sketcher.Constraint("Vertical", 0))
sketch5.addConstraint(Sketcher.Constraint("Horizontal", 1))
sketch5.addConstraint(Sketcher.Constraint("Vertical", 2))
sketch5.addConstraint(Sketcher.Constraint("Horizontal", 3))
sketch5.addConstraint(Sketcher.Constraint("Vertical", 4))
sketch5.addConstraint(Sketcher.Constraint("Vertical", 6))
sketch5.addConstraint(Sketcher.Constraint("Vertical", 8))
sketch5.addConstraint(Sketcher.Constraint("Vertical", 10))
sketch5.addConstraint(Sketcher.Constraint("Equal", 7, 9))
sketch5.addConstraint(Sketcher.Constraint("Symmetric", 5, 3, 9, 3, -1))
sketch5.addConstraint(Sketcher.Constraint("Equal", 6, 8))
sketch5.addConstraint(Sketcher.Constraint("Radius", 5, Q("7 mm")))
sketch5.addConstraint(Sketcher.Constraint("DistanceX", 1, 1, 1, 2, Q("150 mm")))
sketch5.addConstraint(Sketcher.Constraint("DistanceY", 0, 2, 0, 1, Q("530 mm")))
sketch5.addConstraint(Sketcher.Constraint("DistanceY", 4, 2, 4, 1, Q("40 mm")))
sketch5.addConstraint(Sketcher.Constraint("DistanceX", -1, 1, 5, 3, Q("1350 mm")))
sketch5.addConstraint(Sketcher.Constraint("DistanceY", 5, 3, -1, 1, Q("175 mm")))
sketch5.addConstraint(Sketcher.Constraint("DistanceX", -1, 1, 0, 2, Q("1275 mm")))
sketch5.addConstraint(Sketcher.Constraint("DistanceY", 0, 2, -1, 1, Q("190 mm")))
pad5 = body5.newObject("PartDesign::Pad", "Pad004")
pad5.Profile = sketch5
pad5.Length = 20
body6 = doc.addObject("PartDesign::Body", "Body005")

sketch6 = body6.newObject("Sketcher::SketchObject", "Sketch005")
sketch6.AttachmentSupport = (doc.getObject("YZ_Plane005"), [""])
sketch6.MapMode = "FlatFace"
sketch6.AttachmentOffset = App.Placement(V(0, 0, 1425), App.Rotation())
sketch6.addGeometry(Part.ArcOfCircle(Part.Circle(V(-65, 150, 0), V(0, 0, 1), 5), math.radians(0), math.radians(90)), False)
sketch6.addGeometry(Part.LineSegment(V(-65, 156, 0), V(-108, 156, 0)), False)
sketch6.addGeometry(Part.ArcOfCircle(Part.Circle(V(-108, 150, 0), V(0, 0, 1), 5), math.radians(90), math.radians(180)), False)
sketch6.addGeometry(Part.LineSegment(V(-113, 150, 0), V(-113, 138, 0)), False)
sketch6.addGeometry(Part.ArcOfCircle(Part.Circle(V(-108, 138, 0), V(0, 0, 1), 5), math.radians(180), math.radians(270)), False)
sketch6.addGeometry(Part.LineSegment(V(-108, 132, 0), V(-78, 132, 0)), False)
sketch6.addGeometry(Part.ArcOfCircle(Part.Circle(V(-78, 128, 0), V(0, 0, 1), 5), math.radians(0), math.radians(90)), False)
sketch6.addGeometry(Part.LineSegment(V(-72, 128, 0), V(-72, 48, 0)), False)
sketch6.addGeometry(Part.ArcOfCircle(Part.Circle(V(-78, 48, 0), V(0, 0, 1), 5), math.radians(-90), math.radians(0)), False)
sketch6.addGeometry(Part.LineSegment(V(-78, 43, 0), V(-108, 43, 0)), False)
sketch6.addGeometry(Part.ArcOfCircle(Part.Circle(V(-108, 38, 0), V(0, 0, 1), 5), math.radians(90), math.radians(180)), False)
sketch6.addGeometry(Part.LineSegment(V(-113, 38, 0), V(-113, 25, 0)), False)
sketch6.addGeometry(Part.ArcOfCircle(Part.Circle(V(-108, 25, 0), V(0, 0, 1), 5), math.radians(180), math.radians(270)), False)
sketch6.addGeometry(Part.LineSegment(V(-108, 20, 0), V(-65, 20, 0)), False)
sketch6.addGeometry(Part.ArcOfCircle(Part.Circle(V(-65, 25, 0), V(0, 0, 1), 5), math.radians(-90), math.radians(0)), False)
sketch6.addGeometry(Part.LineSegment(V(-60, 25, 0), V(-60, 150, 0)), False)
sketch6.addConstraint(Sketcher.Constraint("Tangent", 0, 2, 1, 1))
sketch6.addConstraint(Sketcher.Constraint("Tangent", 1, 2, 2, 1))
sketch6.addConstraint(Sketcher.Constraint("Tangent", 2, 2, 3, 1))
sketch6.addConstraint(Sketcher.Constraint("Tangent", 3, 2, 4, 1))
sketch6.addConstraint(Sketcher.Constraint("Tangent", 4, 2, 5, 1))
sketch6.addConstraint(Sketcher.Constraint("Tangent", 5, 2, 6, 2))
sketch6.addConstraint(Sketcher.Constraint("Tangent", 6, 1, 7, 1))
sketch6.addConstraint(Sketcher.Constraint("Tangent", 7, 2, 8, 2))
sketch6.addConstraint(Sketcher.Constraint("Tangent", 8, 1, 9, 1))
sketch6.addConstraint(Sketcher.Constraint("Tangent", 9, 2, 10, 1))
sketch6.addConstraint(Sketcher.Constraint("Tangent", 10, 2, 11, 1))
sketch6.addConstraint(Sketcher.Constraint("Tangent", 11, 2, 12, 1))
sketch6.addConstraint(Sketcher.Constraint("Tangent", 12, 2, 13, 1))
sketch6.addConstraint(Sketcher.Constraint("Tangent", 13, 2, 14, 1))
sketch6.addConstraint(Sketcher.Constraint("Tangent", 14, 2, 15, 1))
sketch6.addConstraint(Sketcher.Constraint("Tangent", 15, 2, 0, 1))
sketch6.addConstraint(Sketcher.Constraint("Horizontal", 1))
sketch6.addConstraint(Sketcher.Constraint("Vertical", 3))
sketch6.addConstraint(Sketcher.Constraint("Horizontal", 5))
sketch6.addConstraint(Sketcher.Constraint("Vertical", 7))
sketch6.addConstraint(Sketcher.Constraint("Horizontal", 9))
sketch6.addConstraint(Sketcher.Constraint("Vertical", 11))
sketch6.addConstraint(Sketcher.Constraint("Horizontal", 13))
sketch6.addConstraint(Sketcher.Constraint("Vertical", 15))
sketch6.addConstraint(Sketcher.Constraint("Equal", 0, 2))
sketch6.addConstraint(Sketcher.Constraint("Equal", 2, 4))
sketch6.addConstraint(Sketcher.Constraint("Equal", 4, 6))
sketch6.addConstraint(Sketcher.Constraint("Equal", 6, 8))
sketch6.addConstraint(Sketcher.Constraint("Equal", 8, 10))
sketch6.addConstraint(Sketcher.Constraint("Equal", 10, 12))
sketch6.addConstraint(Sketcher.Constraint("Equal", 12, 14))
sketch6.addConstraint(Sketcher.Constraint("Vertical", 4, 3, 10, 3))
sketch6.addConstraint(Sketcher.Constraint("Equal", 3, 11))
sketch6.addConstraint(Sketcher.Constraint("Radius", 0, Q("5 mm")))
sketch6.addConstraint(Sketcher.Constraint("DistanceX", 1, 2, 1, 1, Q("43 mm")))
sketch6.addConstraint(Sketcher.Constraint("DistanceY", 3, 2, 3, 1, Q("13 mm")))
sketch6.addConstraint(Sketcher.Constraint("DistanceX", 5, 1, 5, 2, Q("30.5 mm")))
sketch6.addConstraint(Sketcher.Constraint("DistanceY", 7, 2, 7, 1, Q("79.5 mm")))
sketch6.addConstraint(Sketcher.Constraint("DistanceX", 0, 3, -1, 1, Q("65 mm")))
sketch6.addConstraint(Sketcher.Constraint("DistanceY", -1, 1, 8, 3, Q("48 mm")))
pad6 = body6.newObject("PartDesign::Pad", "Pad005")
pad6.Profile = sketch6
pad6.Length = 2850
pad6.Reversed = True
body7 = doc.addObject("PartDesign::Body", "Body006")

sketch7 = body7.newObject("Sketcher::SketchObject", "Sketch006")
sketch7.AttachmentSupport = (doc.getObject("YZ_Plane006"), [""])
sketch7.MapMode = "FlatFace"
sketch7.AttachmentOffset = App.Placement(V(0, 0, 1425), App.Rotation())
sketch7.addGeometry(Part.ArcOfCircle(Part.Circle(V(65, 150, 0), V(0, 0, 1), 5), math.radians(90), math.radians(180)), False)
sketch7.addGeometry(Part.LineSegment(V(60, 150, 0), V(60, 25, 0)), False)
sketch7.addGeometry(Part.ArcOfCircle(Part.Circle(V(65, 25, 0), V(0, 0, 1), 5), math.radians(180), math.radians(270)), False)
sketch7.addGeometry(Part.LineSegment(V(65, 20, 0), V(108, 20, 0)), False)
sketch7.addGeometry(Part.ArcOfCircle(Part.Circle(V(108, 25, 0), V(0, 0, 1), 5), math.radians(-90), math.radians(0)), False)
sketch7.addGeometry(Part.LineSegment(V(113, 25, 0), V(113, 38, 0)), False)
sketch7.addGeometry(Part.ArcOfCircle(Part.Circle(V(108, 38, 0), V(0, 0, 1), 5), math.radians(0), math.radians(90)), False)
sketch7.addGeometry(Part.LineSegment(V(108, 43, 0), V(78, 43, 0)), False)
sketch7.addGeometry(Part.ArcOfCircle(Part.Circle(V(78, 48, 0), V(0, 0, 1), 5), math.radians(180), math.radians(270)), False)
sketch7.addGeometry(Part.LineSegment(V(72, 48, 0), V(72, 128, 0)), False)
sketch7.addGeometry(Part.ArcOfCircle(Part.Circle(V(78, 128, 0), V(0, 0, 1), 5), math.radians(90), math.radians(180)), False)
sketch7.addGeometry(Part.LineSegment(V(78, 132, 0), V(108, 132, 0)), False)
sketch7.addGeometry(Part.ArcOfCircle(Part.Circle(V(108, 138, 0), V(0, 0, 1), 5), math.radians(-90), math.radians(0)), False)
sketch7.addGeometry(Part.LineSegment(V(113, 138, 0), V(113, 150, 0)), False)
sketch7.addGeometry(Part.ArcOfCircle(Part.Circle(V(108, 150, 0), V(0, 0, 1), 5), math.radians(0), math.radians(90)), False)
sketch7.addGeometry(Part.LineSegment(V(108, 156, 0), V(65, 156, 0)), False)
sketch7.addConstraint(Sketcher.Constraint("Tangent", 0, 2, 1, 1))
sketch7.addConstraint(Sketcher.Constraint("Tangent", 1, 2, 2, 1))
sketch7.addConstraint(Sketcher.Constraint("Tangent", 2, 2, 3, 1))
sketch7.addConstraint(Sketcher.Constraint("Tangent", 3, 2, 4, 1))
sketch7.addConstraint(Sketcher.Constraint("Tangent", 4, 2, 5, 1))
sketch7.addConstraint(Sketcher.Constraint("Tangent", 5, 2, 6, 1))
sketch7.addConstraint(Sketcher.Constraint("Tangent", 6, 2, 7, 1))
sketch7.addConstraint(Sketcher.Constraint("Tangent", 7, 2, 8, 2))
sketch7.addConstraint(Sketcher.Constraint("Tangent", 8, 1, 9, 1))
sketch7.addConstraint(Sketcher.Constraint("Tangent", 9, 2, 10, 2))
sketch7.addConstraint(Sketcher.Constraint("Tangent", 10, 1, 11, 1))
sketch7.addConstraint(Sketcher.Constraint("Tangent", 11, 2, 12, 1))
sketch7.addConstraint(Sketcher.Constraint("Tangent", 12, 2, 13, 1))
sketch7.addConstraint(Sketcher.Constraint("Tangent", 13, 2, 14, 1))
sketch7.addConstraint(Sketcher.Constraint("Tangent", 14, 2, 15, 1))
sketch7.addConstraint(Sketcher.Constraint("Tangent", 15, 2, 0, 1))
sketch7.addConstraint(Sketcher.Constraint("Vertical", 1))
sketch7.addConstraint(Sketcher.Constraint("Horizontal", 3))
sketch7.addConstraint(Sketcher.Constraint("Vertical", 5))
sketch7.addConstraint(Sketcher.Constraint("Horizontal", 7))
sketch7.addConstraint(Sketcher.Constraint("Vertical", 9))
sketch7.addConstraint(Sketcher.Constraint("Horizontal", 11))
sketch7.addConstraint(Sketcher.Constraint("Vertical", 13))
sketch7.addConstraint(Sketcher.Constraint("Horizontal", 15))
sketch7.addConstraint(Sketcher.Constraint("Equal", 0, 2))
sketch7.addConstraint(Sketcher.Constraint("Equal", 2, 4))
sketch7.addConstraint(Sketcher.Constraint("Equal", 4, 6))
sketch7.addConstraint(Sketcher.Constraint("Equal", 6, 8))
sketch7.addConstraint(Sketcher.Constraint("Equal", 8, 10))
sketch7.addConstraint(Sketcher.Constraint("Equal", 10, 12))
sketch7.addConstraint(Sketcher.Constraint("Equal", 12, 14))
sketch7.addConstraint(Sketcher.Constraint("Vertical", 6, 3, 12, 3))
sketch7.addConstraint(Sketcher.Constraint("Equal", 5, 13))
sketch7.addConstraint(Sketcher.Constraint("Radius", 0, Q("5 mm")))
sketch7.addConstraint(Sketcher.Constraint("DistanceX", 3, 1, 3, 2, Q("43 mm")))
sketch7.addConstraint(Sketcher.Constraint("DistanceY", 5, 1, 5, 2, Q("13 mm")))
sketch7.addConstraint(Sketcher.Constraint("DistanceX", 7, 2, 7, 1, Q("30.5 mm")))
sketch7.addConstraint(Sketcher.Constraint("DistanceY", 1, 2, 1, 1, Q("125.5 mm")))
sketch7.addConstraint(Sketcher.Constraint("DistanceX", -1, 1, 0, 3, Q("65 mm")))
sketch7.addConstraint(Sketcher.Constraint("DistanceY", -1, 1, 2, 3, Q("25 mm")))
pad7 = body7.newObject("PartDesign::Pad", "Pad006")
pad7.Profile = sketch7
pad7.Length = 2850
pad7.Reversed = True
body8 = doc.addObject("PartDesign::Body", "Body007")

sketch8 = body8.newObject("Sketcher::SketchObject", "Sketch007")
sketch8.AttachmentSupport = (doc.getObject("XY_Plane007"), [""])
sketch8.MapMode = "FlatFace"
sketch8.AttachmentOffset = App.Placement(V(0, 0, 20), App.Rotation())
add_polygon(sketch8, [(1275, 60), (1275, -60), (1425, -60), (1425, 60)])
sketch8.addConstraint(Sketcher.Constraint("Vertical", 0))
sketch8.addConstraint(Sketcher.Constraint("Horizontal", 1))
sketch8.addConstraint(Sketcher.Constraint("Vertical", 2))
sketch8.addConstraint(Sketcher.Constraint("Horizontal", 3))
sketch8.addConstraint(Sketcher.Constraint("DistanceX", 1, 1, 1, 2, Q("150 mm")))
sketch8.addConstraint(Sketcher.Constraint("DistanceY", 0, 2, 0, 1, Q("120 mm")))
sketch8.addConstraint(Sketcher.Constraint("DistanceX", -1, 1, 0, 2, Q("1275 mm")))
sketch8.addConstraint(Sketcher.Constraint("DistanceY", 0, 2, -1, 1, Q("60 mm")))
pad8 = body8.newObject("PartDesign::Pad", "Pad007")
pad8.Profile = sketch8
pad8.Length = 410
doc.recompute()

fillet = body8.newObject("PartDesign::Fillet", "Fillet")
fillet.Base = (pad8, edges_at(pad8, [
    (1425, 0, 430),
    (1350, 60, 430),
    (1275, 0, 430),
    (1350, -60, 430),
]))
fillet.Radius = 5

doc.recompute()
